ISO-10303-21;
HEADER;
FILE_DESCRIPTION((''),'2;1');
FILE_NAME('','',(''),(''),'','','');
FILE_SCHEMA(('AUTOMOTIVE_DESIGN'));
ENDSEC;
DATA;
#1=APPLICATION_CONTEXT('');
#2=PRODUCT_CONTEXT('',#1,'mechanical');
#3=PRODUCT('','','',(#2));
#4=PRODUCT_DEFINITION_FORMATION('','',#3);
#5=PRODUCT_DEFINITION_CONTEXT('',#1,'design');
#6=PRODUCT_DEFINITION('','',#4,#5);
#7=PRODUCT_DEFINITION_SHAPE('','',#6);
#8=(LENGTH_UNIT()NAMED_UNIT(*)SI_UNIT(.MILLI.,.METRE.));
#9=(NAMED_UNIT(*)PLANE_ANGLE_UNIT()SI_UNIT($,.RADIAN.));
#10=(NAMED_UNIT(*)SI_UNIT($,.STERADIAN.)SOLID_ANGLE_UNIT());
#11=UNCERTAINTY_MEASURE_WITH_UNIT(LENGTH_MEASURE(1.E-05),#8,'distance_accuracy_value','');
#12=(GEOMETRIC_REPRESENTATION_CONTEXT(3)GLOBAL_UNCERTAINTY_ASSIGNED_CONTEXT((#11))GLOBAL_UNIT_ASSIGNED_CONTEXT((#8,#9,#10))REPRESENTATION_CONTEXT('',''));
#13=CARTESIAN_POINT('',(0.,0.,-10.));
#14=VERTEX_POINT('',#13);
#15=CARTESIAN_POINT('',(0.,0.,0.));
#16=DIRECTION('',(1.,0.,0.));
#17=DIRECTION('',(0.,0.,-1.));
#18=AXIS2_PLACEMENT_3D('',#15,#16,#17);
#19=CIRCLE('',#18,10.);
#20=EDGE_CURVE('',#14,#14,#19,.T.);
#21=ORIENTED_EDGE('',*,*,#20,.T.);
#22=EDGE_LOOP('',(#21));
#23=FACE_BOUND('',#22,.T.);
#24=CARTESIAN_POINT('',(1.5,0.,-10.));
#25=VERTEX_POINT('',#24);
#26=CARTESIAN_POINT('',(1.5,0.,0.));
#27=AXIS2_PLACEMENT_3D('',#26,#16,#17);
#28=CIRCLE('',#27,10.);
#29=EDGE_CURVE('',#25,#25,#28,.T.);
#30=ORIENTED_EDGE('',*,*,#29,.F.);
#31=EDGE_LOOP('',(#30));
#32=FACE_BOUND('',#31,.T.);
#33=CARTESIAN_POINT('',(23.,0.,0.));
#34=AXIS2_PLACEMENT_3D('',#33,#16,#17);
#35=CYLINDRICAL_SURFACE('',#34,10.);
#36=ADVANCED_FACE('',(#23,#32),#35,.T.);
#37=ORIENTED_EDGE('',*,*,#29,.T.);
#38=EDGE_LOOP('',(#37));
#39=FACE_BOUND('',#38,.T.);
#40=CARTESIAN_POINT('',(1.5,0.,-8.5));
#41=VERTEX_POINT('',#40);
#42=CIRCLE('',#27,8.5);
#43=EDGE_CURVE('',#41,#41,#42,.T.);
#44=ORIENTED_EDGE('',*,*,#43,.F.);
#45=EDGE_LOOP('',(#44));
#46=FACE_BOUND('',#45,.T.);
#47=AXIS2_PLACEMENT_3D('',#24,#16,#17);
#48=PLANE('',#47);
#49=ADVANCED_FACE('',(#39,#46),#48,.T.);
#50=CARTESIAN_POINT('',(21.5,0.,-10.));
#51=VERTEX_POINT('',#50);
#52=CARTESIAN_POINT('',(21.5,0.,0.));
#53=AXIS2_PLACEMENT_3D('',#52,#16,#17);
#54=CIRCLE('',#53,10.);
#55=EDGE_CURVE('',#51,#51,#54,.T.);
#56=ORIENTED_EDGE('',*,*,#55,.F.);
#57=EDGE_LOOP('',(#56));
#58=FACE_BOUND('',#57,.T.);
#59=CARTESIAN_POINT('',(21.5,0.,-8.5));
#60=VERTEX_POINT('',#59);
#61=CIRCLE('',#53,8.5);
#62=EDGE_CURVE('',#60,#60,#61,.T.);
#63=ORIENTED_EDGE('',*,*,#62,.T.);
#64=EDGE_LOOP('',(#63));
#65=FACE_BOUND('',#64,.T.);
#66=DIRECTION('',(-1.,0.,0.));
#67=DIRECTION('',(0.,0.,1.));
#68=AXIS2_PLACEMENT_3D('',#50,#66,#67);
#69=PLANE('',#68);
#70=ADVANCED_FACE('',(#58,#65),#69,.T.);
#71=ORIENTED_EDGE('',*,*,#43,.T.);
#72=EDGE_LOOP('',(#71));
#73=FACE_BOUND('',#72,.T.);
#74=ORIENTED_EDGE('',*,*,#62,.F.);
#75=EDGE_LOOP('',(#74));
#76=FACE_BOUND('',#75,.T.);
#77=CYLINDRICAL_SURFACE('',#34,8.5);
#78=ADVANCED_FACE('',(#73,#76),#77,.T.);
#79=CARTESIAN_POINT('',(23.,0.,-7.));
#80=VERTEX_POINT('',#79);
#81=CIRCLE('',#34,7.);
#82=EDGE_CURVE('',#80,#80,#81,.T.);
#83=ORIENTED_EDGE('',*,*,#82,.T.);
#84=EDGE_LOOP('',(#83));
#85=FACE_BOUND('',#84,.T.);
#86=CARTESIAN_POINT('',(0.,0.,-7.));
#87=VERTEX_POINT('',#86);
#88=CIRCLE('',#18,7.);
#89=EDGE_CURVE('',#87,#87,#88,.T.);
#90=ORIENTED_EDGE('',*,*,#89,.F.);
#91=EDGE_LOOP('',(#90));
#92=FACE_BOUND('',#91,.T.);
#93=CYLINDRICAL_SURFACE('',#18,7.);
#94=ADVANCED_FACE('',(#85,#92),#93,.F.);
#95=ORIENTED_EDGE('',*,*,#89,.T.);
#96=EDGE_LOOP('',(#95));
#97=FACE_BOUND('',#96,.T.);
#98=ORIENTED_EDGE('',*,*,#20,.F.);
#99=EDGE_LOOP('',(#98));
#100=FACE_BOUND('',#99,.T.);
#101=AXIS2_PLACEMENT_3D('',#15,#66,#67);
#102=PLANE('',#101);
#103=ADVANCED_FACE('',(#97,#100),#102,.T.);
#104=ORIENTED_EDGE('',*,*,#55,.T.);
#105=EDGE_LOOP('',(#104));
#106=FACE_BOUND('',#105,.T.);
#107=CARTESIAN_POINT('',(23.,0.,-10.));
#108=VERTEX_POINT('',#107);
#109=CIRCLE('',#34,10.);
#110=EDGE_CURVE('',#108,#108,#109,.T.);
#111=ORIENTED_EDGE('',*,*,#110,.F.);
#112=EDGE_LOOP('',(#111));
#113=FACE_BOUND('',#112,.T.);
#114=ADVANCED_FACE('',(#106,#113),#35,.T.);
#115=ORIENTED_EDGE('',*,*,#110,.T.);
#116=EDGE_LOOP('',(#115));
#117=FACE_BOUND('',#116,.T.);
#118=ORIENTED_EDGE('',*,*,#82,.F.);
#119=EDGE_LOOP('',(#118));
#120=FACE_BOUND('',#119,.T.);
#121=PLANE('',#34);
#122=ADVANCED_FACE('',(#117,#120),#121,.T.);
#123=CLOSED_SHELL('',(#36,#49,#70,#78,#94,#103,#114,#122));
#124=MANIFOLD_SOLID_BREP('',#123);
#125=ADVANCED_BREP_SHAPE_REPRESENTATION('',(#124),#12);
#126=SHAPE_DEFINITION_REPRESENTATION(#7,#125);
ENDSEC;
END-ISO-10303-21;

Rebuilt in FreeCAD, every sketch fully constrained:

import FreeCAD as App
import Part
import Sketcher
Q = App.Units.Quantity

doc = App.newDocument("Part")
body = doc.addObject("PartDesign::Body", "Body")

# Sketch on XZ plane
sketch1 = body.newObject("Sketcher::SketchObject", "Sketch")
sketch1.AttachmentSupport = (doc.getObject("XZ_Plane"), [""])
sketch1.MapMode = "FlatFace"
sketch1.addGeometry([
    Part.LineSegment(App.Vector(0, -10, 0), App.Vector(0, 0, 0)),  # 0
    Part.LineSegment(App.Vector(0, 0, 0), App.Vector(23, 0, 0)),  # 1
    Part.LineSegment(App.Vector(23, 0, 0), App.Vector(23, -10, 0)),  # 2
    Part.LineSegment(App.Vector(23, -10, 0), App.Vector(21.5, -10, 0)),  # 3
    Part.LineSegment(App.Vector(21.5, -10, 0), App.Vector(21.5, -8.5, 0)),  # 4
    Part.LineSegment(App.Vector(21.5, -8.5, 0), App.Vector(1.5, -8.5, 0)),  # 5
    Part.LineSegment(App.Vector(1.5, -8.5, 0), App.Vector(1.5, -10, 0)),  # 6
    Part.LineSegment(App.Vector(1.5, -10, 0), App.Vector(0, -10, 0)),  # 7
], False)
sketch1.addConstraint([
    Sketcher.Constraint("Coincident", 0, 2, 1, 1),
    Sketcher.Constraint("Coincident", 1, 2, 2, 1),
    Sketcher.Constraint("Coincident", 2, 2, 3, 1),
    Sketcher.Constraint("Coincident", 3, 2, 4, 1),
    Sketcher.Constraint("Coincident", 4, 2, 5, 1),
    Sketcher.Constraint("Coincident", 5, 2, 6, 1),
    Sketcher.Constraint("Coincident", 6, 2, 7, 1),
    Sketcher.Constraint("Coincident", 7, 2, 0, 1),
    Sketcher.Constraint("Vertical", 0),
    Sketcher.Constraint("Horizontal", 1),
    Sketcher.Constraint("Vertical", 2),
    Sketcher.Constraint("Horizontal", 3),
    Sketcher.Constraint("Vertical", 4),
    Sketcher.Constraint("Horizontal", 5),
    Sketcher.Constraint("Vertical", 6),
    Sketcher.Constraint("Horizontal", 7),
    Sketcher.Constraint("Coincident", 0, 2, -1, 1),
    Sketcher.Constraint("Horizontal", 3, 2, 6, 2),
    Sketcher.Constraint("Equal", 3, 7),
    Sketcher.Constraint("Equal", 7, 4),
    Sketcher.Constraint("DistanceX", 1, 1, 1, 2, Q("23 mm")),
    Sketcher.Constraint("DistanceX", 5, 2, 5, 1, Q("20 mm")),
    Sketcher.Constraint("DistanceY", 0, 1, 0, 2, Q("10 mm")),
])
revolution = body.newObject("PartDesign::Revolution", "Revolution")
revolution.Profile = sketch1
revolution.ReferenceAxis = (sketch1, ["H_Axis"])
revolution.Angle = 360

# Sketch on YZ plane
sketch2 = body.newObject("Sketcher::SketchObject", "Sketch001")
sketch2.AttachmentSupport = (doc.getObject("YZ_Plane"), [""])
sketch2.MapMode = "FlatFace"
sketch2.AttachmentOffset = App.Placement(App.Vector(0, 0, 23), App.Rotation())
sketch2.addGeometry(Part.Circle(App.Vector(0, 0, 0), App.Vector(0, 0, 1), 7), False)
sketch2.addConstraint([
    Sketcher.Constraint("Coincident", 0, 3, -1, 1),
    Sketcher.Constraint("Diameter", 0, Q("14 mm")),
])
pocket1 = body.newObject("PartDesign::Pocket", "Pocket")
pocket1.Profile = sketch2
pocket1.Type = "ThroughAll"

doc.recompute()
